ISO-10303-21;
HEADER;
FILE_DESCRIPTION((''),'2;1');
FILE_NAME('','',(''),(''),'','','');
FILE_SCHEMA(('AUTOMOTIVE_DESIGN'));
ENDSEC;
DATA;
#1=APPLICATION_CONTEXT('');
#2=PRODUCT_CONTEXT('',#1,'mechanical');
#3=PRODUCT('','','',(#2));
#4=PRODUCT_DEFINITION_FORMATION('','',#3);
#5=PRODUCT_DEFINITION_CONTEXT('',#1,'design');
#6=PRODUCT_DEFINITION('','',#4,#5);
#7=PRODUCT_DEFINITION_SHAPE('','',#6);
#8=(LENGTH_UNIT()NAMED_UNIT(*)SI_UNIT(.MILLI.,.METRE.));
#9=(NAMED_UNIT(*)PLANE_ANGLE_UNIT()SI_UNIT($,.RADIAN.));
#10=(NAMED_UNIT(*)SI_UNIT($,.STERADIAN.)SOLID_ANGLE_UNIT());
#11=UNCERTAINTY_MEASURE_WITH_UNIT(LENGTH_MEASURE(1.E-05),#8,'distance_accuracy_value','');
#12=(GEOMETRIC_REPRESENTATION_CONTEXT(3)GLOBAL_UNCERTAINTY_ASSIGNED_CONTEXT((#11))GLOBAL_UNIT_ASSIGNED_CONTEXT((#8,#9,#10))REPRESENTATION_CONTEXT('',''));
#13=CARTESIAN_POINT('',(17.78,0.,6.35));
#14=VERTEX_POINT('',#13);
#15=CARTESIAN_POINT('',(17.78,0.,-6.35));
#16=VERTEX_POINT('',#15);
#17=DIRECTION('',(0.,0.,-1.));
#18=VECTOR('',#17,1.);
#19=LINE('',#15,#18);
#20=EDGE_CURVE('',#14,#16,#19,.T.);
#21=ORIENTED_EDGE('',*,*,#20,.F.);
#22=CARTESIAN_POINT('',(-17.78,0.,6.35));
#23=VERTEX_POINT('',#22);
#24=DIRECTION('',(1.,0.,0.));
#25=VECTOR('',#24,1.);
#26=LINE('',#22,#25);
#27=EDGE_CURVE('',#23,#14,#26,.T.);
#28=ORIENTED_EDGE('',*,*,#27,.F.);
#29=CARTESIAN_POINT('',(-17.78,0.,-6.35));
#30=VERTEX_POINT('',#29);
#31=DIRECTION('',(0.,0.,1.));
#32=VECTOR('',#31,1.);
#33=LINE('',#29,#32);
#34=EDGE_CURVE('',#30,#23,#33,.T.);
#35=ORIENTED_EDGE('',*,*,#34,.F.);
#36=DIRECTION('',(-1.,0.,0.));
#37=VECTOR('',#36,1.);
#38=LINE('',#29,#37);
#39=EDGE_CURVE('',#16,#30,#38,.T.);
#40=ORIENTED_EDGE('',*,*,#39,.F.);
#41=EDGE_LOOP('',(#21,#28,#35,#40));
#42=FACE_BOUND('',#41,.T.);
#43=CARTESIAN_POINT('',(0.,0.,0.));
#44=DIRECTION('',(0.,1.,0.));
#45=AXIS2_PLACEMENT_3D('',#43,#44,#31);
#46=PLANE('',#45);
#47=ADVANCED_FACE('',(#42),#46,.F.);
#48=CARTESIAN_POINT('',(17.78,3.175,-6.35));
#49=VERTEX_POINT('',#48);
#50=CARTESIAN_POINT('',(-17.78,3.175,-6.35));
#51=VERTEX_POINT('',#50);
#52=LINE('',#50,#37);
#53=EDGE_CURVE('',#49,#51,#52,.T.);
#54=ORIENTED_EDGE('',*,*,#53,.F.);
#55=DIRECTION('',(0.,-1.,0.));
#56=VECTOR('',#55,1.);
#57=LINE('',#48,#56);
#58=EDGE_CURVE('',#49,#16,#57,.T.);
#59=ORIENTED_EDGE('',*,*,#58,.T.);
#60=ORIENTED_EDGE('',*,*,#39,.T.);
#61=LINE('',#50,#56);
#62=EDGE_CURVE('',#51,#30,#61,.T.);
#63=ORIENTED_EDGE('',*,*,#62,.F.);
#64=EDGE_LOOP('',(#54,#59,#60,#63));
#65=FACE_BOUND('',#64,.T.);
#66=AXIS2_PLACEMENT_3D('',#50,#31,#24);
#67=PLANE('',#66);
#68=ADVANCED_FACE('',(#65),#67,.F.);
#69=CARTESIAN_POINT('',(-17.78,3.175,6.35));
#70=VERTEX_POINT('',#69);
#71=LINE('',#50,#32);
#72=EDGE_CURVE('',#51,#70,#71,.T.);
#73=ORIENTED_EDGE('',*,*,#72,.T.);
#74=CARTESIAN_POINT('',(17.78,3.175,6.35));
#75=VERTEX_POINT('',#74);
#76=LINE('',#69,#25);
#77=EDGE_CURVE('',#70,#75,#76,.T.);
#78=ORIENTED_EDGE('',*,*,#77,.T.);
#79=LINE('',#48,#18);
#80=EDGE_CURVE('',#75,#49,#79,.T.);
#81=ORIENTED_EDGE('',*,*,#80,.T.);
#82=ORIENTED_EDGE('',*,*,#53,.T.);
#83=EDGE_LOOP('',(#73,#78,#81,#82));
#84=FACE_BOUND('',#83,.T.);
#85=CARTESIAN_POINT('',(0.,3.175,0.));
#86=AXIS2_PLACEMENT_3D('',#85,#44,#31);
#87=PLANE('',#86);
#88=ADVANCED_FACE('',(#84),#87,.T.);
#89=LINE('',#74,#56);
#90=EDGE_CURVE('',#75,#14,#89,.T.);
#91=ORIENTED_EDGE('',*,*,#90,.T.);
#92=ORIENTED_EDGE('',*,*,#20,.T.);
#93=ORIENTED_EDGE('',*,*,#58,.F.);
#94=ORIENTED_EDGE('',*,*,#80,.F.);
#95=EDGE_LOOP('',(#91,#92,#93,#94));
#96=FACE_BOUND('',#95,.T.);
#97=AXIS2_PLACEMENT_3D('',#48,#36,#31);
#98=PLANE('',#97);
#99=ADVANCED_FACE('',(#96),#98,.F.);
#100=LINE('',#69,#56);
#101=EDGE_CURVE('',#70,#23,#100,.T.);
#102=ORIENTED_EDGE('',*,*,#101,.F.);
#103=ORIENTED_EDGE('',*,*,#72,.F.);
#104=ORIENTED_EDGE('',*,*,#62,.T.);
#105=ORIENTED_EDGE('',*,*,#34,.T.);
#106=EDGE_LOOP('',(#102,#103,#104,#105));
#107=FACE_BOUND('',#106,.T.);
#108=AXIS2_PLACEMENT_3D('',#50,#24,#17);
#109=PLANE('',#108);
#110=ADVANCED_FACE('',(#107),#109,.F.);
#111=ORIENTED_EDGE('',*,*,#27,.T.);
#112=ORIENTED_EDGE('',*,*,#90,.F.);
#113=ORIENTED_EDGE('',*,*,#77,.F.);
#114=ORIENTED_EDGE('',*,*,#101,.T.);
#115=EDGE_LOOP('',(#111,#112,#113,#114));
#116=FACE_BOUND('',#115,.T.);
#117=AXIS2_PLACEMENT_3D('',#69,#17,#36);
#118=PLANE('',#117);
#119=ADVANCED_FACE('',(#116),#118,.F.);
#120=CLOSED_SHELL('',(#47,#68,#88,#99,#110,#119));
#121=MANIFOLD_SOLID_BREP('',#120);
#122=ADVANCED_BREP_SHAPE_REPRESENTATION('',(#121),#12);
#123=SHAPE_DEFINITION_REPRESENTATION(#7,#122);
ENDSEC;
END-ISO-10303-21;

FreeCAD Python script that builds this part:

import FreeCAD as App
import Part
import Sketcher

V = App.Vector
Q = App.Units.Quantity

doc = App.newDocument("Part")
body = doc.addObject("PartDesign::Body", "Body")

# Sketch on XZ plane
sketch1 = doc.addObject("Sketcher::SketchObject", "Sketch")
body.addObject(sketch1)
sketch1.AttachmentSupport = (doc.XZ_Plane, [""])
sketch1.MapMode = "FlatFace"
sketch1.addGeometry([
    Part.LineSegment(V(-18, -6, 0), V(-18, 6, 0)),
    Part.LineSegment(V(-18, 6, 0), V(18, 6, 0)),
    Part.LineSegment(V(18, 6, 0), V(18, -6, 0)),
    Part.LineSegment(V(18, -6, 0), V(-18, -6, 0)),
], False)
sketch1.addConstraint([
    Sketcher.Constraint("Coincident", 0, 2, 1, 1),
    Sketcher.Constraint("Coincident", 1, 2, 2, 1),
    Sketcher.Constraint("Coincident", 2, 2, 3, 1),
    Sketcher.Constraint("Coincident", 3, 2, 0, 1),
    Sketcher.Constraint("Vertical", 0),
    Sketcher.Constraint("Horizontal", 1),
    Sketcher.Constraint("Vertical", 2),
    Sketcher.Constraint("Horizontal", 3),
    Sketcher.Constraint("Symmetric", 0, 2, 2, 2, -1, 1),
    Sketcher.Constraint("DistanceX", 1, 1, 1, 2, Q("1.4 in")),
    Sketcher.Constraint("DistanceY", 0, 1, 0, 2, Q("0.5 in")),
])
pad1 = doc.addObject("PartDesign::Pad", "Pad")
body.addObject(pad1)
pad1.Profile = sketch1
pad1.Length = Q("0.125 in")
pad1.Reversed = True

doc.recompute()
